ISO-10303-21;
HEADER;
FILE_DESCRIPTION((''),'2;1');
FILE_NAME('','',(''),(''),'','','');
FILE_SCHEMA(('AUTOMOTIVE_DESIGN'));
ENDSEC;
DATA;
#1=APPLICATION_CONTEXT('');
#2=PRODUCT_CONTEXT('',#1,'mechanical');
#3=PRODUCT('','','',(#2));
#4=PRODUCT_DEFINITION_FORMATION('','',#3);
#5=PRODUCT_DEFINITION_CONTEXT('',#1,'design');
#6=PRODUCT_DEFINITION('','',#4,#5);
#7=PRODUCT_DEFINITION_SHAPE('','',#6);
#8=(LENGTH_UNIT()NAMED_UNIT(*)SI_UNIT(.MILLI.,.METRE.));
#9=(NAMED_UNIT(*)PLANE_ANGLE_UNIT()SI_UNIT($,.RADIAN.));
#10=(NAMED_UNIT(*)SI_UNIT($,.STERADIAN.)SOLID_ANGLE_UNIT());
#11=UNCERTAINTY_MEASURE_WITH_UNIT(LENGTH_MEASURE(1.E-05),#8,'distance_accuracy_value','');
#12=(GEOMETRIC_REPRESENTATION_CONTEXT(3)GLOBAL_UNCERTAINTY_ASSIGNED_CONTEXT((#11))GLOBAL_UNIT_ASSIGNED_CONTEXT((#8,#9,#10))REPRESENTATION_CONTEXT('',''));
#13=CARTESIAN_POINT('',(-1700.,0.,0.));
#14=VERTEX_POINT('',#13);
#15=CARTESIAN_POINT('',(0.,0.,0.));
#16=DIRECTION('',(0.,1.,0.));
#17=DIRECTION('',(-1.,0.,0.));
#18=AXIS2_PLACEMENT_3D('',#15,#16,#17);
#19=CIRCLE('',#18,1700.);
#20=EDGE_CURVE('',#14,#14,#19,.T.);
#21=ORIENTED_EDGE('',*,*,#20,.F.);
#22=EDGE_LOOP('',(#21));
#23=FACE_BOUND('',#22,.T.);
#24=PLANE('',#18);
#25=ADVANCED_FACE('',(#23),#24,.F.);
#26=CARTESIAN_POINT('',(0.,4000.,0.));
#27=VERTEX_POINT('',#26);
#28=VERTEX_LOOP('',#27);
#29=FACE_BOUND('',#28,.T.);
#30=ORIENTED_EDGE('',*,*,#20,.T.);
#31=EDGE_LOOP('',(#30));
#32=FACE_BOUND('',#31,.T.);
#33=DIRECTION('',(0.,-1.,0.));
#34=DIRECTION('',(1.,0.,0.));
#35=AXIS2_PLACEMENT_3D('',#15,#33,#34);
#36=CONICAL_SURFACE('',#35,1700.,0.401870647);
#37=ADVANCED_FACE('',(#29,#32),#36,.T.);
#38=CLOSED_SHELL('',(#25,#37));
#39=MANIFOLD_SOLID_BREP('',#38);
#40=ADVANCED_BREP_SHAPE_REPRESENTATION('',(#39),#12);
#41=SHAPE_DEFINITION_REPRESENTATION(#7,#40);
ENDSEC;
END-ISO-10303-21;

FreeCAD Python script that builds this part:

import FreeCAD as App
import Part
import Sketcher

V = App.Vector


def add_polygon(sketch, points):
    """Adds a closed chain of lines whose ends are joined by coincident constraints."""
    first, n = sketch.GeometryCount, len(points)
    for a, b in zip(points, points[1:] + points[:1]):
        sketch.addGeometry(Part.LineSegment(App.Vector(*a, 0), App.Vector(*b, 0)), False)
    for i in range(n):
        sketch.addConstraint(Sketcher.Constraint("Coincident", first + i, 2, first + (i + 1) % n, 1))

doc = App.newDocument("Part")
body = doc.addObject("PartDesign::Body", "Body")

# Sketch on XY plane
sketch1 = body.newObject("Sketcher::SketchObject", "Sketch")
sketch1.AttachmentSupport = (doc.getObject("XY_Plane"), [""])
sketch1.MapMode = "FlatFace"
add_polygon(sketch1, [(0, 0), (1700, 0), (0, 4000)])  # lines 0-2
sketch1.addConstraint([
    Sketcher.Constraint("Horizontal", 0),
    Sketcher.Constraint("Vertical", 2),
    Sketcher.Constraint("Coincident", 2, 2, -1, 1),
    Sketcher.Constraint("DistanceX", 0, 1, 0, 2, 1700.0),
    Sketcher.Constraint("DistanceY", 2, 2, 2, 1, 4000.0),
])
revolution = body.newObject("PartDesign::Revolution", "Revolution")
revolution.Profile = sketch1
revolution.ReferenceAxis = (sketch1, ["V_Axis"])
revolution.Angle = 360

doc.recompute()
